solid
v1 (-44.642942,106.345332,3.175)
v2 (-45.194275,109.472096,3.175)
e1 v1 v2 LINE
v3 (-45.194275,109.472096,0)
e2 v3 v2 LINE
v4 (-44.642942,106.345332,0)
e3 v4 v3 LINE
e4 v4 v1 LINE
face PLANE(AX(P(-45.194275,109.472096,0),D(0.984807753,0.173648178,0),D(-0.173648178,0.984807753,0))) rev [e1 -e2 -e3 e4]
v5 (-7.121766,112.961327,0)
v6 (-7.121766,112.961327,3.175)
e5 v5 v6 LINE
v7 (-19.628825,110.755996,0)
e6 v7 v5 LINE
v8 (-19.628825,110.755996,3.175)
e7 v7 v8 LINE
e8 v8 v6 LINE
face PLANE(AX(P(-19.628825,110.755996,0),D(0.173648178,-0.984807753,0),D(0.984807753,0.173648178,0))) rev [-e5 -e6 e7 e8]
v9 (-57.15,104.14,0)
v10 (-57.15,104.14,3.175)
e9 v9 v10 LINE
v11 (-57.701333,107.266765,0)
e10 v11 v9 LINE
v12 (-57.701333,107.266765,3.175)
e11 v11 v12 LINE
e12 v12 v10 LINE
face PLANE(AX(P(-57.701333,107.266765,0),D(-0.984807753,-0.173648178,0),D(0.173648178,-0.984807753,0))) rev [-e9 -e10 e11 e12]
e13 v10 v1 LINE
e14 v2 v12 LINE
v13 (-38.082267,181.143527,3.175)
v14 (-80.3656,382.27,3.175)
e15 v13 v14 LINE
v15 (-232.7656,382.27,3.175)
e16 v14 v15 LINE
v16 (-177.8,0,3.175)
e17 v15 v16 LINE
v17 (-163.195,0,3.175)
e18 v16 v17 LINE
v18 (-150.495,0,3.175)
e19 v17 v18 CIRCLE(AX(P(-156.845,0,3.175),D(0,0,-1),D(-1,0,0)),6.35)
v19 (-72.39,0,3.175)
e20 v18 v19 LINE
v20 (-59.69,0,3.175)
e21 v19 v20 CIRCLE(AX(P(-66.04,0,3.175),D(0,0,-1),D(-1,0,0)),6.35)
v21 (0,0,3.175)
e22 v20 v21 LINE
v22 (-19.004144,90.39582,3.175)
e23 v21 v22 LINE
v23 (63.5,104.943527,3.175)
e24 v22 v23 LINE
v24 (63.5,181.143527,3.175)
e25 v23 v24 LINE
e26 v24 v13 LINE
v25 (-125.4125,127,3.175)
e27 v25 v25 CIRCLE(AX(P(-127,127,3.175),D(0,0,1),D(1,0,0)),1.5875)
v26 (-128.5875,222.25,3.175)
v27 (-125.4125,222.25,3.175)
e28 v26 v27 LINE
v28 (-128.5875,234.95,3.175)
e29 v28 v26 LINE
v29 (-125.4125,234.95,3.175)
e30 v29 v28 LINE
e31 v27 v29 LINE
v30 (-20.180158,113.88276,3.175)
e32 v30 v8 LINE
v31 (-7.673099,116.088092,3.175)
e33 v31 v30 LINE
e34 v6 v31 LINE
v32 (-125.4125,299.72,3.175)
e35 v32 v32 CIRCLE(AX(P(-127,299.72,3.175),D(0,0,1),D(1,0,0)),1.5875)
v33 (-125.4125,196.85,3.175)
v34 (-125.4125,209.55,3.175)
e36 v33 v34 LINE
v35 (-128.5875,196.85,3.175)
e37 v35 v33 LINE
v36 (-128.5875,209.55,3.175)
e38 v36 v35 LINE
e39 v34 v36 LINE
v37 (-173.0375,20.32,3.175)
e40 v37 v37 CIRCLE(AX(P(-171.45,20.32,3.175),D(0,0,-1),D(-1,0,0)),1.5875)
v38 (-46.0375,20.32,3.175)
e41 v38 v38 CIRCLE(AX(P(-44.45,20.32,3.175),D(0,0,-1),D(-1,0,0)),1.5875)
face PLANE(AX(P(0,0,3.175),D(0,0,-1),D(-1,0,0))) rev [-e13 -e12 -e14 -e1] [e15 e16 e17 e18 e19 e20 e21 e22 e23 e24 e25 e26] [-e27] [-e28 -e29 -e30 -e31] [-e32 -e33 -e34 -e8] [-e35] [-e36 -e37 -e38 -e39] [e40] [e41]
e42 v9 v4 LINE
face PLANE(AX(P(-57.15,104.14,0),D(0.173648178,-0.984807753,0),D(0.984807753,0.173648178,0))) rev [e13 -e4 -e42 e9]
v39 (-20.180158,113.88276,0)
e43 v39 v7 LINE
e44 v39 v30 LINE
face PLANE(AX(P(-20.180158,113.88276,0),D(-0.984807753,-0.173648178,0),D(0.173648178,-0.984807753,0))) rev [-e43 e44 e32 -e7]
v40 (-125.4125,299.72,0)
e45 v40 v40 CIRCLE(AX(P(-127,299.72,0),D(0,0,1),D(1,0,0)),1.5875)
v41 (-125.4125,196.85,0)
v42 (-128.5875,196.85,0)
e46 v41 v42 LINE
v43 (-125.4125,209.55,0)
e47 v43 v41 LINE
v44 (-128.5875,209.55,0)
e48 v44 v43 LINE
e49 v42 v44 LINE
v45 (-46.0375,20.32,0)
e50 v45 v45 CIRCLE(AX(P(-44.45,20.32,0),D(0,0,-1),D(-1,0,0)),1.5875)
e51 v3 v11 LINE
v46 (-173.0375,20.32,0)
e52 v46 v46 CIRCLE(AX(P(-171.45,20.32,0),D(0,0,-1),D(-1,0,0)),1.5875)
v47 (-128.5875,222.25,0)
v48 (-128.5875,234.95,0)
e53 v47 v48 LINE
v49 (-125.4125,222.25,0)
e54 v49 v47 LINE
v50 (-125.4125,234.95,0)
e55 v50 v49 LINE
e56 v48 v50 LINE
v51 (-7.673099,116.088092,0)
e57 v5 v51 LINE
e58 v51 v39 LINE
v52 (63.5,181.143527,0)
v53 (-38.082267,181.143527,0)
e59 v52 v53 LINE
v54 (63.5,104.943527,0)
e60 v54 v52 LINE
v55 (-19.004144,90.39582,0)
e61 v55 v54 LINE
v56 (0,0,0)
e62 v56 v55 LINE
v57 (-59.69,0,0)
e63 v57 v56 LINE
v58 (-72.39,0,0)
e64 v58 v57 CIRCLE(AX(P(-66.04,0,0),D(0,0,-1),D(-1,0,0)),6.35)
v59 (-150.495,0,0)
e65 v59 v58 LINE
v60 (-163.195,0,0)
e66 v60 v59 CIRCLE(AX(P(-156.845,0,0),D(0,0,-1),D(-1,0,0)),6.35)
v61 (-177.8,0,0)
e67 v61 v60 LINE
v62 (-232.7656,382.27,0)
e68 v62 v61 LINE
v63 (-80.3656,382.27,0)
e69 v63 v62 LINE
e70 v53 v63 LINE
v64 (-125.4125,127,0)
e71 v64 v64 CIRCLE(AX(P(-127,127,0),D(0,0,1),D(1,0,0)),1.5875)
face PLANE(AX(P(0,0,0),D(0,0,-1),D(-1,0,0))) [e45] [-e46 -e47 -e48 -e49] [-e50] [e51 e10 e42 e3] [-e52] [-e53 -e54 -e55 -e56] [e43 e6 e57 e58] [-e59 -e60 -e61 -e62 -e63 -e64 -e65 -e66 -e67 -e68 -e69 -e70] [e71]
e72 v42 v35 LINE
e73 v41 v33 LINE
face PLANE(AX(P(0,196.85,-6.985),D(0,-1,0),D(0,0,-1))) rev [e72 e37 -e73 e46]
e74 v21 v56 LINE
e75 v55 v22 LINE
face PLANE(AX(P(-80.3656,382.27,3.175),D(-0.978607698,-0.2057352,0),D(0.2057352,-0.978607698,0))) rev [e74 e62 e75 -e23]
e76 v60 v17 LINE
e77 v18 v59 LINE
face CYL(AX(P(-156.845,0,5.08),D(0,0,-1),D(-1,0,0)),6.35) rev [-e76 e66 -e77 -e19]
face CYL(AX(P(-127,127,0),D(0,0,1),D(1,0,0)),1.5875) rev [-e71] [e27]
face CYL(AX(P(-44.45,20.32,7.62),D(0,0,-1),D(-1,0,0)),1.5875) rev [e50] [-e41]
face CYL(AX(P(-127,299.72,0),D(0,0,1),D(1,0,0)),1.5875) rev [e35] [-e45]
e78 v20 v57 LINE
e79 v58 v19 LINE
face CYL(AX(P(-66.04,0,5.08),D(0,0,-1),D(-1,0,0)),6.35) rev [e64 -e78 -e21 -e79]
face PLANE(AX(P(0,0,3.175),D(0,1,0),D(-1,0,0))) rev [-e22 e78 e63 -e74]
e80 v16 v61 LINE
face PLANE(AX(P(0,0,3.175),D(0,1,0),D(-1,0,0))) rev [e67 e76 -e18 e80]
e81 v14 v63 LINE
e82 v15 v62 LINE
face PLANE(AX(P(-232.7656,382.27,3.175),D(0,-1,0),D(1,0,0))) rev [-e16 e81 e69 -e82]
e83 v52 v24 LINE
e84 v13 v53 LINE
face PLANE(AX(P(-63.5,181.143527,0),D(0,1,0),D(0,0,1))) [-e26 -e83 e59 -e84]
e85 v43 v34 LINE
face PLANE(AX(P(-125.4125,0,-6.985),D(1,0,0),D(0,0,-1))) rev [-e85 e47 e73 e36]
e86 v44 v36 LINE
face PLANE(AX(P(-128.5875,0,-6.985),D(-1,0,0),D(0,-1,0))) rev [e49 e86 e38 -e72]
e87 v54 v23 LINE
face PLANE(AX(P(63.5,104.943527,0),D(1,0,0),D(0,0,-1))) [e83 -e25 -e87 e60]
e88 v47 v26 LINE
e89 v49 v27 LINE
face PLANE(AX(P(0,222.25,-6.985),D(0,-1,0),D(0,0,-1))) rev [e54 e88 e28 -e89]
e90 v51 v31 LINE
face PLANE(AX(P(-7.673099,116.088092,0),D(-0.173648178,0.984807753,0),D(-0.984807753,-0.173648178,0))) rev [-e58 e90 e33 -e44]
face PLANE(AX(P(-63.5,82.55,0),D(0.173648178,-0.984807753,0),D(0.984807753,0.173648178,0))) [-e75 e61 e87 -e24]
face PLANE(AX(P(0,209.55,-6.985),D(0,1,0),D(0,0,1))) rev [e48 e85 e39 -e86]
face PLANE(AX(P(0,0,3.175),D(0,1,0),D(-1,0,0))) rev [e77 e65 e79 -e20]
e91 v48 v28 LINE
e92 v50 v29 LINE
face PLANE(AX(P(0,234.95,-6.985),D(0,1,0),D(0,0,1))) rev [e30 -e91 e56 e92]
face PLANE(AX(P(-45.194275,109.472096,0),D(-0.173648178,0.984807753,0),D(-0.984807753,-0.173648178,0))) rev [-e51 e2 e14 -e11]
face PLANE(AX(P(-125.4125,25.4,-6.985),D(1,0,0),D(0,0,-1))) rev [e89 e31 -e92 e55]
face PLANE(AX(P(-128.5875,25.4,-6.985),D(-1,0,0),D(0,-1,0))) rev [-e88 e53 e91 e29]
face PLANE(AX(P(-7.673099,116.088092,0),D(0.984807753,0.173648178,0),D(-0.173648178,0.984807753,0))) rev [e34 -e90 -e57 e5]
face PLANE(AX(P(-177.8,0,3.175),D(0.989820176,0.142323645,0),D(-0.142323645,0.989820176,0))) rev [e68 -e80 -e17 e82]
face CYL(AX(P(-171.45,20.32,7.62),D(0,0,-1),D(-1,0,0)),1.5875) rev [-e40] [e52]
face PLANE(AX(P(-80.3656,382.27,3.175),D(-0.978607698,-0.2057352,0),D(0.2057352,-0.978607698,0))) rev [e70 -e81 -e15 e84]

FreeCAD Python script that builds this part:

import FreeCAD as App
import Part
import Sketcher

V = App.Vector
Q = App.Units.Quantity


def add_polygon(sketch, points):
    """Adds a closed chain of lines whose ends are joined by coincident constraints."""
    first, n = sketch.GeometryCount, len(points)
    for a, b in zip(points, points[1:] + points[:1]):
        sketch.addGeometry(Part.LineSegment(App.Vector(*a, 0), App.Vector(*b, 0)), False)
    for i in range(n):
        sketch.addConstraint(Sketcher.Constraint("Coincident", first + i, 2, first + (i + 1) % n, 1))

doc = App.newDocument("Part")
body = doc.addObject("PartDesign::Body", "Body")

# Sketch on XY plane
sketch1 = doc.addObject("Sketcher::SketchObject", "Sketch")
body.addObject(sketch1)
sketch1.AttachmentSupport = (doc.XY_Plane, [""])
sketch1.MapMode = "FlatFace"
add_polygon(sketch1, [(-178, 0), (0, 0), (-80, 382), (-233, 382)])  # lines 0-3
sketch1.addConstraint([
    Sketcher.Constraint("Horizontal", 0),
    Sketcher.Constraint("Horizontal", 2),
    Sketcher.Constraint("Coincident", 0, 2, -1, 1),
    Sketcher.Constraint("DistanceX", 0, 1, 0, 2, Q("7 in")),
    Sketcher.Constraint("DistanceX", 2, 2, 2, 1, Q("6 in")),
    Sketcher.Constraint("DistanceY", -1, 1, 1, 2, Q("15.05 in")),
    Sketcher.Constraint("DistanceX", 1, 2, -1, 1, Q("3.164 in")),
])
pad1 = doc.addObject("PartDesign::Pad", "Pad")
body.addObject(pad1)
pad1.Profile = sketch1
pad1.Length = Q("0.125 in")

# Sketch on XY plane
sketch2 = doc.addObject("Sketcher::SketchObject", "Sketch001")
body.addObject(sketch2)
sketch2.AttachmentSupport = (doc.XY_Plane, [""])
sketch2.MapMode = "FlatFace"
sketch2.AttachmentOffset = App.Placement(V(0, 0, 0.125 * 25.4), App.Rotation())
sketch2.addGeometry([
    Part.Circle(V(-127, 127, 0), V(0, 0, 1), 1.6),
    Part.Circle(V(-127, 299.7, 0), V(0, 0, 1), 1.6),
], False)
sketch2.addConstraint([
    Sketcher.Constraint("Equal", 0, 1),
    Sketcher.Constraint("Vertical", 0, 3, 1, 3),
    Sketcher.Constraint("Diameter", 0, Q("0.125 in")),
    Sketcher.Constraint("DistanceX", 0, 3, -1, 1, Q("5 in")),
    Sketcher.Constraint("DistanceY", -1, 1, 0, 3, Q("5 in")),
    Sketcher.Constraint("DistanceY", -1, 1, 1, 3, Q("11.8 in")),
])
pocket1 = doc.addObject("PartDesign::Pocket", "Pocket")
body.addObject(pocket1)
pocket1.Profile = sketch2
pocket1.Length = Q("0.125 in")

# Sketch on XY plane
sketch3 = doc.addObject("Sketcher::SketchObject", "Sketch002")
body.addObject(sketch3)
sketch3.AttachmentSupport = (doc.XY_Plane, [""])
sketch3.MapMode = "FlatFace"
sketch3.AttachmentOffset = App.Placement(V(0, 0, 0.125 * 25.4), App.Rotation())
add_polygon(sketch3, [(-64, 83), (64, 105), (64, 181), (-64, 181)])  # lines 0-3
sketch3.addConstraint([
    Sketcher.Constraint("Vertical", 1),
    Sketcher.Constraint("Horizontal", 2),
    Sketcher.Constraint("Vertical", 3),
    Sketcher.Constraint("DistanceX", 2, 2, 2, 1, Q("5 in")),
    Sketcher.Constraint("DistanceY", 1, 1, 1, 2, Q("3 in")),
    Sketcher.Constraint("Angle", 0, Q("10 deg")),
    Sketcher.Constraint("DistanceX", -1, 1, 0, 2, Q("2.5 in")),
    Sketcher.Constraint("DistanceY", -1, 1, 3, 2, Q("3.25 in")),
])
pad2 = doc.addObject("PartDesign::Pad", "Pad001")
body.addObject(pad2)
pad2.Profile = sketch3
pad2.Length = Q("0.125 in")
pad2.Reversed = True

# Sketch on XY plane
sketch4 = doc.addObject("Sketcher::SketchObject", "Sketch003")
body.addObject(sketch4)
sketch4.AttachmentSupport = (doc.XY_Plane, [""])
sketch4.MapMode = "FlatFace"
sketch4.AttachmentOffset = App.Placement(V(0, 0, 0.125 * 25.4), App.Rotation())
add_polygon(sketch4, [(-57.1, 104.1), (-44.6, 106.3), (-45.2, 109.5), (-57.7, 107.3)])  # lines 0-3
add_polygon(sketch4, [(-19.6, 110.8), (-7.1, 113), (-7.7, 116.1), (-20.2, 113.9)])  # lines 4-7
sketch4.addConstraint([
    Sketcher.Constraint("Perpendicular", 0, 1),
    Sketcher.Constraint("Perpendicular", 1, 2),
    Sketcher.Constraint("Perpendicular", 2, 3),
    Sketcher.Constraint("Perpendicular", 3, 4),
    Sketcher.Constraint("Perpendicular", 4, 5),
    Sketcher.Constraint("Perpendicular", 5, 6),
    Sketcher.Constraint("Perpendicular", 6, 7),
    Sketcher.Constraint("Equal", 2, 4),
    Sketcher.Constraint("Equal", 3, 5),
    Sketcher.Constraint("Angle", 0, Q("10 deg")),
    Sketcher.Constraint("Distance", 0, Q("0.5 in")),
    Sketcher.Constraint("DistanceY", -1, 1, 3, 2, Q("4.1 in")),
    Sketcher.Constraint("DistanceX", 3, 2, -1, 1, Q("2.25 in")),
    Sketcher.Constraint("Distance", 1, Q("0.125 in")),
    Sketcher.Constraint("DistanceX", 5, 2, -1, 1, 7.673099),
    Sketcher.Constraint("DistanceY", 1, 2, 7, 2, 1.283899),
])
pocket2 = doc.addObject("PartDesign::Pocket", "Pocket001")
body.addObject(pocket2)
pocket2.Profile = sketch4
pocket2.Length = Q("0.125 in")

# Sketch on XY plane
sketch5 = doc.addObject("Sketcher::SketchObject", "Sketch004")
body.addObject(sketch5)
sketch5.AttachmentSupport = (doc.XY_Plane, [""])
sketch5.MapMode = "FlatFace"
sketch5.AttachmentOffset = App.Placement(V(0, 0, 0.125 * 25.4), App.Rotation())
add_polygon(sketch5, [(-125.4, 196.8), (-125.4, 209.6), (-128.6, 209.6), (-128.6, 196.8)])  # lines 0-3
sketch5.addConstraint([
    Sketcher.Constraint("Vertical", 0),
    Sketcher.Constraint("Horizontal", 1),
    Sketcher.Constraint("Vertical", 2),
    Sketcher.Constraint("Horizontal", 3),
    Sketcher.Constraint("DistanceY", 0, 1, 0, 2, Q("0.5 in")),
    Sketcher.Constraint("DistanceX", 1, 2, 1, 1, Q("0.125 in")),
    Sketcher.Constraint("DistanceY", -1, 1, 0, 2, Q("8.25 in")),
    Sketcher.Constraint("DistanceX", 0, 2, -1, 1, Q("4.9375 in")),
])
pocket3 = doc.addObject("PartDesign::Pocket", "Pocket002")
body.addObject(pocket3)
pocket3.Profile = sketch5
pocket3.Length = Q("0.4 in")
doc.recompute()

linearpattern = doc.addObject("PartDesign::LinearPattern", "LinearPattern")
body.addObject(linearpattern)
linearpattern.Originals = [pocket3]
linearpattern.Direction = (doc.Y_Axis, [""])
linearpattern.Mode = "offset"
linearpattern.Offset = Q("1 in")
linearpattern.Occurrences = 2
body.Tip = linearpattern

# Sketch on XY plane
sketch6 = doc.addObject("Sketcher::SketchObject", "Sketch005")
body.addObject(sketch6)
sketch6.AttachmentSupport = (doc.XY_Plane, [""])
sketch6.MapMode = "FlatFace"
sketch6.addGeometry([
    Part.Circle(V(-171.4, 20.3, 0), V(0, 0, 1), 1.6),
    Part.Circle(V(-44.5, 20.3, 0), V(0, 0, 1), 1.6),
], False)
sketch6.addConstraint([
    Sketcher.Constraint("Equal", 0, 1),
    Sketcher.Constraint("Horizontal", 0, 3, 1, 3),
    Sketcher.Constraint("Diameter", 0, Q("0.125 in")),
    Sketcher.Constraint("DistanceX", 0, 3, 1, 3, Q("5 in")),
    Sketcher.Constraint("DistanceY", -1, 1, 0, 3, Q("0.8 in")),
    Sketcher.Constraint("DistanceX", 0, 3, -1, 1, Q("6.75 in")),
])
pocket4 = doc.addObject("PartDesign::Pocket", "Pocket003")
body.addObject(pocket4)
pocket4.Profile = sketch6
pocket4.Length = Q("0.3 in")
pocket4.Reversed = True

# Sketch on XY plane
sketch7 = doc.addObject("Sketcher::SketchObject", "Sketch006")
body.addObject(sketch7)
sketch7.AttachmentSupport = (doc.XY_Plane, [""])
sketch7.MapMode = "FlatFace"
sketch7.addGeometry([
    Part.Circle(V(-157, 0, 0), V(0, 0, 1), 6),
    Part.Circle(V(-66, 0, 0), V(0, 0, 1), 6),
], False)
sketch7.addConstraint([
    Sketcher.Constraint("Equal", 0, 1),
    Sketcher.Constraint("PointOnObject", 0, 3, -1),
    Sketcher.Constraint("PointOnObject", 1, 3, -1),
    Sketcher.Constraint("Diameter", 0, Q("0.5 in")),
    Sketcher.Constraint("DistanceX", 1, 3, -1, 1, Q("2.6 in")),
    Sketcher.Constraint("DistanceX", 0, 3, -1, 1, Q("6.175 in")),
])
pocket5 = doc.addObject("PartDesign::Pocket", "Pocket004")
body.addObject(pocket5)
pocket5.Profile = sketch7
pocket5.Length = Q("0.2 in")
pocket5.Reversed = True

doc.recompute()
